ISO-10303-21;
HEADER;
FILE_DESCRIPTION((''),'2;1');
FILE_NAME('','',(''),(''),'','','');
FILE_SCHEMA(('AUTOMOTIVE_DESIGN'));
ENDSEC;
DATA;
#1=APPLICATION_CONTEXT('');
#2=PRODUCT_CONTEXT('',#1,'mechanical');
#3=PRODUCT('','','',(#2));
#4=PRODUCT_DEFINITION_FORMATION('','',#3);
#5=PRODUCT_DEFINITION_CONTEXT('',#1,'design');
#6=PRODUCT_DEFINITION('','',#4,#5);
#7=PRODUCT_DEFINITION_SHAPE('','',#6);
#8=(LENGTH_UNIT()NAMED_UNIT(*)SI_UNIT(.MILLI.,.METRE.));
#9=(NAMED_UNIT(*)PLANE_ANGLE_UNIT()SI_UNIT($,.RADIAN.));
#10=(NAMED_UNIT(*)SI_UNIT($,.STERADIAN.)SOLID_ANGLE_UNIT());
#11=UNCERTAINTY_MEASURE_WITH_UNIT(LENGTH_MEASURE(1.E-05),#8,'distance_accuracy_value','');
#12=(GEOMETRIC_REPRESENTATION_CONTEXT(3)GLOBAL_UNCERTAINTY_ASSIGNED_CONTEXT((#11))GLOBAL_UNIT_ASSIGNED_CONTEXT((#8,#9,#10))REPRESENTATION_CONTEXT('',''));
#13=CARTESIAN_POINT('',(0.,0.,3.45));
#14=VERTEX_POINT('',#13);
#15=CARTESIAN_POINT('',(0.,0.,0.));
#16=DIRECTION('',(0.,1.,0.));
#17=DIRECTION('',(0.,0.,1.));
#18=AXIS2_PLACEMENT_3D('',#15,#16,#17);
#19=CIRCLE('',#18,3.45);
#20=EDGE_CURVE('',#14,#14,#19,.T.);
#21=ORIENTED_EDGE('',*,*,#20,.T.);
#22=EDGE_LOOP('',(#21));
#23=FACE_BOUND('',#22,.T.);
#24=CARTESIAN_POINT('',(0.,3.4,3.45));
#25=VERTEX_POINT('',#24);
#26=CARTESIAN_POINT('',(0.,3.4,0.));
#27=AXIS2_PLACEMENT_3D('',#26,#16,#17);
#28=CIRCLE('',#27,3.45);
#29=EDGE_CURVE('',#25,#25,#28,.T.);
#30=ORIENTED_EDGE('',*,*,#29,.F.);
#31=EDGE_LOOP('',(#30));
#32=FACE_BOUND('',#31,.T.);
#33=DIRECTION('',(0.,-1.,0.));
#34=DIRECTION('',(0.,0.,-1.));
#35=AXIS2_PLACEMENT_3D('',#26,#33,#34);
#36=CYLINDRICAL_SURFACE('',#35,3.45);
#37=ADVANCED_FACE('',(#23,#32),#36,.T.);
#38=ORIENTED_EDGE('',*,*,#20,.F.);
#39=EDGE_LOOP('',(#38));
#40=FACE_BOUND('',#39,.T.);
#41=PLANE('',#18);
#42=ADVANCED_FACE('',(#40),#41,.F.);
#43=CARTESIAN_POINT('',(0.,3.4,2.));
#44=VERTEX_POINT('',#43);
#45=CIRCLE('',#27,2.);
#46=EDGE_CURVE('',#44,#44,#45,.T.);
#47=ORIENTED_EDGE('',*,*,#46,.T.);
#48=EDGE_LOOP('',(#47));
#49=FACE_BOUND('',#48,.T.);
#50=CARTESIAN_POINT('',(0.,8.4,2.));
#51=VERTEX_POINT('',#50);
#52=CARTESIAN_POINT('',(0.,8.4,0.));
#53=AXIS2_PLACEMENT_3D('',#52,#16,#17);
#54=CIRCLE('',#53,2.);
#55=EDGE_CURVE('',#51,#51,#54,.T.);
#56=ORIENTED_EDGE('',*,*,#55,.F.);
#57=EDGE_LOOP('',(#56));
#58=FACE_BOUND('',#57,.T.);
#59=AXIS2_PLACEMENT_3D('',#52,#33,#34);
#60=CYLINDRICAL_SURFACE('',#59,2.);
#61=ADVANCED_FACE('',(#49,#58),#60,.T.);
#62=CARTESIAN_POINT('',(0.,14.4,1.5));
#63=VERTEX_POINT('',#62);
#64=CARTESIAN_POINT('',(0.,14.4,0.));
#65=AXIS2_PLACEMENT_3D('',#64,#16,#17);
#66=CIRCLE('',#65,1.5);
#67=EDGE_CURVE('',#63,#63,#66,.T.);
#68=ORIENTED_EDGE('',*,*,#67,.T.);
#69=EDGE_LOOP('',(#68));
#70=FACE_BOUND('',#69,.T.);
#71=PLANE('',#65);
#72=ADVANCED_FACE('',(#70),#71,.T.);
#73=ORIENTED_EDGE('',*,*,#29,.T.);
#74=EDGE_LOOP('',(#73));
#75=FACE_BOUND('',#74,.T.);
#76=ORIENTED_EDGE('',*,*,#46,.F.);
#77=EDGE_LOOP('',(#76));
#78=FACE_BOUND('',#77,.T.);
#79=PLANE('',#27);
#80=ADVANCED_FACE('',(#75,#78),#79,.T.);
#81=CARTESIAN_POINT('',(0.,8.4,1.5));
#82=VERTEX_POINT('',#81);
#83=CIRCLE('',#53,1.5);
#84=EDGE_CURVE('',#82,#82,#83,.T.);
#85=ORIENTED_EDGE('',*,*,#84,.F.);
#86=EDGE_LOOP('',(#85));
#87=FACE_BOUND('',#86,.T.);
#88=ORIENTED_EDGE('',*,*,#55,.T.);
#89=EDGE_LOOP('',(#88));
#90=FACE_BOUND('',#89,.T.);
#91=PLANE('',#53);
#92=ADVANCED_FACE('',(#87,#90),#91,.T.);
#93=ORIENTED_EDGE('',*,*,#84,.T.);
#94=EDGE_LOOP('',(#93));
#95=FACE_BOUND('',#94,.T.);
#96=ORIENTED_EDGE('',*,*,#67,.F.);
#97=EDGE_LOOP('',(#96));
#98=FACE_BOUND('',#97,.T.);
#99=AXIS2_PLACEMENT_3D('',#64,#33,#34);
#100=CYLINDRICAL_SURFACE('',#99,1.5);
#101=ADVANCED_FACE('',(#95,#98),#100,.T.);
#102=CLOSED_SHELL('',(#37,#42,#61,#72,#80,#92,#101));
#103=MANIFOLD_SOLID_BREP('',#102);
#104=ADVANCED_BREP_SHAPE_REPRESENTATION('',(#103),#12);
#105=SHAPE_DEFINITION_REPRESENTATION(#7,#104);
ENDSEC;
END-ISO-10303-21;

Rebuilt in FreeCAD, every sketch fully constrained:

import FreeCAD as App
import Part
import Sketcher
from FreeCAD import Vector
Q = App.Units.Quantity

doc = App.newDocument("Part")
body = doc.addObject("PartDesign::Body", "Body")

# Sketch on XZ plane
sketch1 = body.newObject("Sketcher::SketchObject", "Sketch")
sketch1.AttachmentSupport = (doc.getObject("XZ_Plane"), [""])
sketch1.MapMode = "FlatFace"
sketch1.addGeometry(Part.Circle(Vector(0, 0, 0), Vector(0, 0, 1), 3.5), False)
sketch1.addConstraint(Sketcher.Constraint("Coincident", 0, 3, -1, 1))
sketch1.addConstraint(Sketcher.Constraint("Diameter", 0, Q("6.9 mm")))
pad1 = body.newObject("PartDesign::Pad", "Pad")
pad1.Profile = sketch1
pad1.Length = 3.4
pad1.Reversed = True

# Sketch on XZ plane
sketch2 = body.newObject("Sketcher::SketchObject", "Sketch001")
sketch2.AttachmentSupport = (doc.getObject("XZ_Plane"), [""])
sketch2.MapMode = "FlatFace"
sketch2.AttachmentOffset = App.Placement(Vector(0, 0, -3.4), App.Rotation())
sketch2.addGeometry(Part.Circle(Vector(0, 0, 0), Vector(0, 0, 1), 2), False)
sketch2.addConstraint(Sketcher.Constraint("Coincident", 0, 3, -1, 1))
sketch2.addConstraint(Sketcher.Constraint("Diameter", 0, Q("4 mm")))
pad2 = body.newObject("PartDesign::Pad", "Pad001")
pad2.Profile = sketch2
pad2.Length = 5
pad2.Reversed = True

# Sketch on XZ plane
sketch3 = body.newObject("Sketcher::SketchObject", "Sketch002")
sketch3.AttachmentSupport = (doc.getObject("XZ_Plane"), [""])
sketch3.MapMode = "FlatFace"
sketch3.AttachmentOffset = App.Placement(Vector(0, 0, -8.4), App.Rotation())
sketch3.addGeometry(Part.Circle(Vector(0, 0, 0), Vector(0, 0, 1), 1.5), False)
sketch3.addConstraint(Sketcher.Constraint("Coincident", 0, 3, -1, 1))
sketch3.addConstraint(Sketcher.Constraint("Diameter", 0, Q("3 mm")))
pad3 = body.newObject("PartDesign::Pad", "Pad002")
pad3.Profile = sketch3
pad3.Length = 6
pad3.Reversed = True

doc.recompute()
